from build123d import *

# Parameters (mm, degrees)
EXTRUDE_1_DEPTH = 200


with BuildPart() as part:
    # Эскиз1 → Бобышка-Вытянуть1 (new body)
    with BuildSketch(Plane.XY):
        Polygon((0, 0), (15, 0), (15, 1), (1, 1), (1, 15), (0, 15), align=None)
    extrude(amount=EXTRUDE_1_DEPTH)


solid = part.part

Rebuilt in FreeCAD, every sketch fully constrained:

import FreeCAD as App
import Part
import Sketcher
from FreeCAD import Vector


def add_polygon(sketch, points):
    """Adds a closed chain of lines whose ends are joined by coincident constraints."""
    first, n = sketch.GeometryCount, len(points)
    for a, b in zip(points, points[1:] + points[:1]):
        sketch.addGeometry(Part.LineSegment(App.Vector(*a, 0), App.Vector(*b, 0)), False)
    for i in range(n):
        sketch.addConstraint(Sketcher.Constraint("Coincident", first + i, 2, first + (i + 1) % n, 1))

doc = App.newDocument("Part")
body = doc.addObject("PartDesign::Body", "Body")

sketch1 = doc.addObject("Sketcher::SketchObject", "Sketch")
body.addObject(sketch1)
sketch1.AttachmentSupport = (doc.XY_Plane, [""])
sketch1.MapMode = "FlatFace"
add_polygon(sketch1, [(0, 0), (15, 0), (15, 1), (1, 1), (1, 15), (0, 15)])
sketch1.addConstraint([
    Sketcher.Constraint("Horizontal", 0),
    Sketcher.Constraint("Vertical", 1),
    Sketcher.Constraint("Horizontal", 2),
    Sketcher.Constraint("Vertical", 3),
    Sketcher.Constraint("Horizontal", 4),
    Sketcher.Constraint("Vertical", 5),
    Sketcher.Constraint("Coincident", 5, 2, -1, 1),
    Sketcher.Constraint("Equal", 4, 1),
    Sketcher.Constraint("Equal", 2, 3),
    Sketcher.Constraint("DistanceX", 0, 1, 0, 2, 15.0),
    Sketcher.Constraint("DistanceX", 2, 2, 2, 1, 14.0),
])
pad1 = doc.addObject("PartDesign::Pad", "Pad")
body.addObject(pad1)
pad1.Profile = sketch1
pad1.Length = 200

doc.recompute()
